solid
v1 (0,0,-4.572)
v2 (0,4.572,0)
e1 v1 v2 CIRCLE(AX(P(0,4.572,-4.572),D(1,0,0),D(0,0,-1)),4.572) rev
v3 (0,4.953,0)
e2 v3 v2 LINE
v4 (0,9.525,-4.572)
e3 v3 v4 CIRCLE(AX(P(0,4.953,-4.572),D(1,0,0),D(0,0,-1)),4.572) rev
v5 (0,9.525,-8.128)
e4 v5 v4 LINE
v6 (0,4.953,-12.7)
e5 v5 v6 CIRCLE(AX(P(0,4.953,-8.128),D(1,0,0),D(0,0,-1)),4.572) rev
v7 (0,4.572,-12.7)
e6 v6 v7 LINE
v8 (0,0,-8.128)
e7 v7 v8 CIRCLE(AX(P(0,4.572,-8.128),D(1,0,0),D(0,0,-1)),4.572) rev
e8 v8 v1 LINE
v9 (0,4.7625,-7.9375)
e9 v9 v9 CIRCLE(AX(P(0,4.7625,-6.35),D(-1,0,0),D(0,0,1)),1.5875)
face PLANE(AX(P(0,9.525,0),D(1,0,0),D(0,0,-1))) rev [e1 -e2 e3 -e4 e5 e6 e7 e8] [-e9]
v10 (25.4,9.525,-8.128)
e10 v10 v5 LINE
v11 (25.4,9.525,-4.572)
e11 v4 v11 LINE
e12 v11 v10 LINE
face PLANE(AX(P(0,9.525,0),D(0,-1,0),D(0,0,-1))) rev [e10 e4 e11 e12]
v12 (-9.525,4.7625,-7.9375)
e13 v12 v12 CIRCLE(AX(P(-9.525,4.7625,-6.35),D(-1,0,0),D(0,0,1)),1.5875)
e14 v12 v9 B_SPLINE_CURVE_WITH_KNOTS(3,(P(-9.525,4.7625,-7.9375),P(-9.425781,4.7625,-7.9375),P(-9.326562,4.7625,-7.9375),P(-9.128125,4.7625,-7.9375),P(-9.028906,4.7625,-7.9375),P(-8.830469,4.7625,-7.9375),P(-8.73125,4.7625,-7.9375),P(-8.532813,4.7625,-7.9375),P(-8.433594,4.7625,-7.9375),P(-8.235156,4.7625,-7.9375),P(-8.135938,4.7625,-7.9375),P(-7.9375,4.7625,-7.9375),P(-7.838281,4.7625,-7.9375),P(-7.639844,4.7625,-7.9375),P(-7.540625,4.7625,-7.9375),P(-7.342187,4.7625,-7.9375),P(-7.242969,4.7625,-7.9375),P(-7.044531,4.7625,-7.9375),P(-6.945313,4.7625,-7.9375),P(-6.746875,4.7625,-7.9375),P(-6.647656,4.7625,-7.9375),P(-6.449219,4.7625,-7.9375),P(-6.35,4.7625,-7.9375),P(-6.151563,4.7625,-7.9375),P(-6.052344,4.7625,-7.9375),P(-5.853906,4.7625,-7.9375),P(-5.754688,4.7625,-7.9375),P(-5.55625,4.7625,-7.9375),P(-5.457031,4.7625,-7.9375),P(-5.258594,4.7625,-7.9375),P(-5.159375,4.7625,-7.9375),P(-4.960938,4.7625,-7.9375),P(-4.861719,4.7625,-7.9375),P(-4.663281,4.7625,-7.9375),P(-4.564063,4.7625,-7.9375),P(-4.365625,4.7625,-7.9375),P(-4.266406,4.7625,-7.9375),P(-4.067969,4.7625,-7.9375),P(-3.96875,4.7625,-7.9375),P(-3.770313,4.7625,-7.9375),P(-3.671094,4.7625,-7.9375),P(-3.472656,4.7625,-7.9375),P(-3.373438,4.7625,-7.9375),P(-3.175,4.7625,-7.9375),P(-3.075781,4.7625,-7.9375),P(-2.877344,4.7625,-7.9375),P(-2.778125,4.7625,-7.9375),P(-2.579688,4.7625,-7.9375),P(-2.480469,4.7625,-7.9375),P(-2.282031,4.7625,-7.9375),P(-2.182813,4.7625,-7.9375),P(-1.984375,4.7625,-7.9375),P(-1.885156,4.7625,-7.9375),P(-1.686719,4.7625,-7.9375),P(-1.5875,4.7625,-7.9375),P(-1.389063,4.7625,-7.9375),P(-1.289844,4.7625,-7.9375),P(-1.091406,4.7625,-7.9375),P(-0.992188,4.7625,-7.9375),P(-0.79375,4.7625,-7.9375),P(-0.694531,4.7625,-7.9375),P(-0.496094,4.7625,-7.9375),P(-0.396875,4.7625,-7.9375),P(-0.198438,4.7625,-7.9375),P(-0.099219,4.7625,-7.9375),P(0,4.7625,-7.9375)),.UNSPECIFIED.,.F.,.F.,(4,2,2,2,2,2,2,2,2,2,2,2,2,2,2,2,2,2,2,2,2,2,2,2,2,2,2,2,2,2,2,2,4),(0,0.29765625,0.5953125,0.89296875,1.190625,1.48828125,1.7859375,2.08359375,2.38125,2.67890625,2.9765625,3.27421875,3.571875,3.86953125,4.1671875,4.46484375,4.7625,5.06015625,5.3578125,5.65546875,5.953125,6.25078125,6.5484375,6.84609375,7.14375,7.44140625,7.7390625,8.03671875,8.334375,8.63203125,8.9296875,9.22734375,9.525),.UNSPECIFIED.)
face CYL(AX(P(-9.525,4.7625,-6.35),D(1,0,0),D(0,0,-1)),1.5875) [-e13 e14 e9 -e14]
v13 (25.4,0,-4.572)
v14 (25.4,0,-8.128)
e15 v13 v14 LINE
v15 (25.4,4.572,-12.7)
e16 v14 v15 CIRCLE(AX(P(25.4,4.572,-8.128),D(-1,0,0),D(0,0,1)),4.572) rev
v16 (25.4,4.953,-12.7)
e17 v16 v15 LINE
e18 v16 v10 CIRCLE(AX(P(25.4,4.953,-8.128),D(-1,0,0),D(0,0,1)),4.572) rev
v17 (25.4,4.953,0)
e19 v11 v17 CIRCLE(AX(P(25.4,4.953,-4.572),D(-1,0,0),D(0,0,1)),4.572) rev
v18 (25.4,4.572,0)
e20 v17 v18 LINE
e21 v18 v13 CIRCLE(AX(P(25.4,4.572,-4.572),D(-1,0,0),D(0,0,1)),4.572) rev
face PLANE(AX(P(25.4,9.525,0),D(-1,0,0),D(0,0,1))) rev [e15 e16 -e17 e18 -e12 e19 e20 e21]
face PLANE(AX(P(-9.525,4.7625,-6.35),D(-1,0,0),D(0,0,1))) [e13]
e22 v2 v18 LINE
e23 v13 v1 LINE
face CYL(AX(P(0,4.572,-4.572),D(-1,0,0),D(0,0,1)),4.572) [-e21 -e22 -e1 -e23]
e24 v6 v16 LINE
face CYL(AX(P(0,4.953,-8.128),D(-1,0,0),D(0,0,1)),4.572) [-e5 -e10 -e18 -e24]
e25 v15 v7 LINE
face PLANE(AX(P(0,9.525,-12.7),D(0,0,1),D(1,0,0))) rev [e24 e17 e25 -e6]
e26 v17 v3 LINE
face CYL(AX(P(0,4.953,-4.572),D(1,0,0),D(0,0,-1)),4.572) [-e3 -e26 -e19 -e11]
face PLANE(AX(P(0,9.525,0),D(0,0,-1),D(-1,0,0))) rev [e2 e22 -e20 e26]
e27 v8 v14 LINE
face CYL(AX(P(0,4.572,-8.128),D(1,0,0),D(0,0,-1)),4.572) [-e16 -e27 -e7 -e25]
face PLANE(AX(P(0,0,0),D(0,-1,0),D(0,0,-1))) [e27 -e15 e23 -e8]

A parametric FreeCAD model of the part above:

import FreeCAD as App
import Part
import Sketcher
from FreeCAD import Vector
Q = App.Units.Quantity


def edges_at(feature, points):
    """Names of the edges that pass closest to the given points."""
    edges = feature.Shape.Edges
    near = lambda p: min(range(len(edges)), key=lambda i: edges[i].distToShape(Part.Vertex(*p))[0])
    return sorted({f"Edge{near(p) + 1}" for p in points})

doc = App.newDocument("Part")
params = doc.addObject("Spreadsheet::Sheet", "Params")
for row, (alias, value) in enumerate([
    ("sketch1_width", "1 in"),
    ("sketch1_height", "0.5 in"),
    ("pad1_length", "0.375 in"),
    ("sketch2_diameter", "0.125 in"),
    ("pad2_length", "0.375 in"),
    ("fillet_radius", "0.18 in"),
], start=1):
    params.set(f"A{row}", alias)
    params.set(f"B{row}", "=" + value)
    params.setAlias(f"B{row}", alias)

body = doc.addObject("PartDesign::Body", "Body")

# Sketch on XZ plane
sketch1 = body.newObject("Sketcher::SketchObject", "Sketch")
sketch1.AttachmentSupport = (doc.getObject("XZ_Plane"), [""])
sketch1.MapMode = "FlatFace"
sketch1.addGeometry(Part.LineSegment(Vector(0, -13, 0), Vector(0, 0, 0)), False)
sketch1.addGeometry(Part.LineSegment(Vector(0, 0, 0), Vector(25, 0, 0)), False)
sketch1.addGeometry(Part.LineSegment(Vector(25, 0, 0), Vector(25, -13, 0)), False)
sketch1.addGeometry(Part.LineSegment(Vector(25, -13, 0), Vector(0, -13, 0)), False)
sketch1.addConstraint(Sketcher.Constraint("Coincident", 0, 2, 1, 1))
sketch1.addConstraint(Sketcher.Constraint("Coincident", 1, 2, 2, 1))
sketch1.addConstraint(Sketcher.Constraint("Coincident", 2, 2, 3, 1))
sketch1.addConstraint(Sketcher.Constraint("Coincident", 3, 2, 0, 1))
sketch1.addConstraint(Sketcher.Constraint("Vertical", 0))
sketch1.addConstraint(Sketcher.Constraint("Horizontal", 1))
sketch1.addConstraint(Sketcher.Constraint("Vertical", 2))
sketch1.addConstraint(Sketcher.Constraint("Horizontal", 3))
sketch1.addConstraint(Sketcher.Constraint("Coincident", 0, 2, -1, 1))
sketch1.addConstraint(Sketcher.Constraint("DistanceX", 1, 1, 1, 2, Q("1 in")))
sketch1.addConstraint(Sketcher.Constraint("DistanceY", 0, 1, 0, 2, Q("0.5 in")))
sketch1.setExpression("Constraints[9]", "Params.sketch1_width")
sketch1.setExpression("Constraints[10]", "Params.sketch1_height")
pad1 = body.newObject("PartDesign::Pad", "Pad")
pad1.Profile = sketch1
pad1.setExpression("Length", "Params.pad1_length")
pad1.Reversed = True

# Sketch on YZ plane
sketch2 = body.newObject("Sketcher::SketchObject", "Sketch001")
sketch2.AttachmentSupport = (doc.getObject("YZ_Plane"), [""])
sketch2.MapMode = "FlatFace"
sketch2.addGeometry(Part.Circle(Vector(4.8, -6.3, 0), Vector(0, 0, 1), 1.6), False)
sketch2.addConstraint(Sketcher.Constraint("Diameter", 0, Q("0.125 in")))
sketch2.addConstraint(Sketcher.Constraint("DistanceY", 0, 3, -1, 1, Q("0.25 in")))
sketch2.addConstraint(Sketcher.Constraint("DistanceX", -1, 1, 0, 3, Q("0.1875 in")))
sketch2.setExpression("Constraints[0]", "Params.sketch2_diameter")
pad2 = body.newObject("PartDesign::Pad", "Pad001")
pad2.Profile = sketch2
pad2.setExpression("Length", "Params.pad2_length")
pad2.Reversed = True
doc.recompute()

fillet = body.newObject("PartDesign::Fillet", "Fillet")
fillet.Base = (pad2, edges_at(pad2, [
    (12.7, 9.525, -12.7),
    (12.7, 0, -12.7),
    (12.7, 0, 0),
    (12.7, 9.525, 0),
]))
fillet.setExpression("Radius", "Params.fillet_radius")

doc.recompute()
